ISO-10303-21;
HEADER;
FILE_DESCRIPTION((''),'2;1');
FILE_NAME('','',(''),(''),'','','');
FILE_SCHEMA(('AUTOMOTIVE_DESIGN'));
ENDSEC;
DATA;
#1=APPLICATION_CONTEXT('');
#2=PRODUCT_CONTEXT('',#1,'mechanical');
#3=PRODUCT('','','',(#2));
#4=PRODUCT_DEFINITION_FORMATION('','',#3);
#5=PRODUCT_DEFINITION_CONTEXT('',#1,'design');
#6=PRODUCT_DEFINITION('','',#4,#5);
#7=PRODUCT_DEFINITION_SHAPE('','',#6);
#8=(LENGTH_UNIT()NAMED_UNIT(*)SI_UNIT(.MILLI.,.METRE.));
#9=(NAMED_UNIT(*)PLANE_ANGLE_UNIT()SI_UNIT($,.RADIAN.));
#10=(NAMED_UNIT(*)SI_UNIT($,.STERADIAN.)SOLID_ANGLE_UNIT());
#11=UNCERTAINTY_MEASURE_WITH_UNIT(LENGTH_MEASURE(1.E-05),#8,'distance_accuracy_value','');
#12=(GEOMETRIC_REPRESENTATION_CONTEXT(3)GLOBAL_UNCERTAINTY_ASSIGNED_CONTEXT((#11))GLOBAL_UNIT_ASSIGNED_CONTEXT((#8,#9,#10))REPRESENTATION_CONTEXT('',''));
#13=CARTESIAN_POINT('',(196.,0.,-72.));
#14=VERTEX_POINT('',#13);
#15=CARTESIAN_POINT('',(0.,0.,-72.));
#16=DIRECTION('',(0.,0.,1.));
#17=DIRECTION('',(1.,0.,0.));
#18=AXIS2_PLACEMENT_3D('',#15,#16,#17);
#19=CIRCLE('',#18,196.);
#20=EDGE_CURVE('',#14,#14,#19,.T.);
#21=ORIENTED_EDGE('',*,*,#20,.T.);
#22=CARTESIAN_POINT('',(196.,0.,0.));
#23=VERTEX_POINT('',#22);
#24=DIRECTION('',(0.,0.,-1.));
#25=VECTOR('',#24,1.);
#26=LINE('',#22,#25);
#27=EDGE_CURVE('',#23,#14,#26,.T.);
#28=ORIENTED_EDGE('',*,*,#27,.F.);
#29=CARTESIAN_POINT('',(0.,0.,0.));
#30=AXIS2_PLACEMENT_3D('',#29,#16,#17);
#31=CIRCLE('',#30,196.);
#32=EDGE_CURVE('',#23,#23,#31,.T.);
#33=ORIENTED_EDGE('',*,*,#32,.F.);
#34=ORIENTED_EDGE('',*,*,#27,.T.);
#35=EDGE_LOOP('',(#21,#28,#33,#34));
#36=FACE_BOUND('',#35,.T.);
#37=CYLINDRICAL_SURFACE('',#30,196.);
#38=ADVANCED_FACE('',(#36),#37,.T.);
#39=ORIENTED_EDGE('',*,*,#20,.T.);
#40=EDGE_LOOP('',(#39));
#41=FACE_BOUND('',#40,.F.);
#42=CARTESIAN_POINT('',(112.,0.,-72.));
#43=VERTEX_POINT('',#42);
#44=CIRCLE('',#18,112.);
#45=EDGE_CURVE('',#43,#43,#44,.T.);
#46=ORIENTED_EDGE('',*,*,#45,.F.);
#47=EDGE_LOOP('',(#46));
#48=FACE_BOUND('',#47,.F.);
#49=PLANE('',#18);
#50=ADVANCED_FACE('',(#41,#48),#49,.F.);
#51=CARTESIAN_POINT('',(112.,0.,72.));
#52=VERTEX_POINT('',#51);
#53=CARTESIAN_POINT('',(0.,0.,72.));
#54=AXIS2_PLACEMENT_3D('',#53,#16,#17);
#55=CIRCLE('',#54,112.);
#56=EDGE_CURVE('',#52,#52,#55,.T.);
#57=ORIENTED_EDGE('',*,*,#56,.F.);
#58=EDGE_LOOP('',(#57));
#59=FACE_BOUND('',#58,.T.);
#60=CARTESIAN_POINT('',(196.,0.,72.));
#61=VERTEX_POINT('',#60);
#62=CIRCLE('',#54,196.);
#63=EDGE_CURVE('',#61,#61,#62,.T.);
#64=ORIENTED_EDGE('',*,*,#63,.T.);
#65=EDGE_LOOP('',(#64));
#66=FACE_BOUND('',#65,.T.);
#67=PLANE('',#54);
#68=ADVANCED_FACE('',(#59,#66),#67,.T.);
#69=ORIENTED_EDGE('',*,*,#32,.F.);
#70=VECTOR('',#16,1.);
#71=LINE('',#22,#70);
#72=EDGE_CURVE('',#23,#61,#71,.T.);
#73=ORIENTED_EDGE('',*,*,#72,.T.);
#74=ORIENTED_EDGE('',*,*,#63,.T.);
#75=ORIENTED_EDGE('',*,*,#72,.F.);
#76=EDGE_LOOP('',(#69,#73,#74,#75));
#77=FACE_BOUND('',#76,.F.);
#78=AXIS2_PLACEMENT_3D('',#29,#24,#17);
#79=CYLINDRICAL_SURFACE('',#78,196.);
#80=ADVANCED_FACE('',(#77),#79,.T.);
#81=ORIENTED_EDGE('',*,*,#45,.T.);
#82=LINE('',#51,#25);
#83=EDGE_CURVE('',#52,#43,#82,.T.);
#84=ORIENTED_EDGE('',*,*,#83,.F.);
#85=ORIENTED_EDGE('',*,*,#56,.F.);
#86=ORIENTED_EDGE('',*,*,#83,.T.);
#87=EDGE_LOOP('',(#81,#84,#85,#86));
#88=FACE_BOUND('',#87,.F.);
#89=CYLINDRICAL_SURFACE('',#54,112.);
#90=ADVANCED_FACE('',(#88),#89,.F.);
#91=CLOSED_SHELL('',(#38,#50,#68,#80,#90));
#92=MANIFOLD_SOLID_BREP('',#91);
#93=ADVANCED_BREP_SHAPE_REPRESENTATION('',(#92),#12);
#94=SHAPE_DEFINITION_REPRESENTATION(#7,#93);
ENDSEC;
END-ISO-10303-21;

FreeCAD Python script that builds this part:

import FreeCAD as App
import Part
import Sketcher
from FreeCAD import Vector

doc = App.newDocument("Part")
body = doc.addObject("PartDesign::Body", "Body")

# Sketch on XY plane
sketch1 = body.newObject("Sketcher::SketchObject", "Sketch")
sketch1.AttachmentSupport = (doc.getObject("XY_Plane"), [""])
sketch1.MapMode = "FlatFace"
sketch1.addGeometry(Part.Circle(Vector(0, 0, 0), Vector(0, 0, 1), 196), False)
sketch1.addConstraint([
    Sketcher.Constraint("Coincident", 0, 3, -1, 1),
    Sketcher.Constraint("Diameter", 0, 392.0),
])
pad1 = body.newObject("PartDesign::Pad", "Pad")
pad1.Profile = sketch1
pad1.Length = 144
pad1.Midplane = True

# Sketch on XY plane
sketch2 = body.newObject("Sketcher::SketchObject", "Sketch001")
sketch2.AttachmentSupport = (doc.getObject("XY_Plane"), [""])
sketch2.MapMode = "FlatFace"
sketch2.AttachmentOffset = App.Placement(Vector(0, 0, 72), App.Rotation())
sketch2.addGeometry(Part.Circle(Vector(0, 0, 0), Vector(0, 0, 1), 112), False)
sketch2.addConstraint([
    Sketcher.Constraint("Coincident", 0, 3, -1, 1),
    Sketcher.Constraint("Diameter", 0, 224.0),
])
pocket1 = body.newObject("PartDesign::Pocket", "Pocket")
pocket1.Profile = sketch2
pocket1.Type = "ThroughAll"

doc.recompute()
